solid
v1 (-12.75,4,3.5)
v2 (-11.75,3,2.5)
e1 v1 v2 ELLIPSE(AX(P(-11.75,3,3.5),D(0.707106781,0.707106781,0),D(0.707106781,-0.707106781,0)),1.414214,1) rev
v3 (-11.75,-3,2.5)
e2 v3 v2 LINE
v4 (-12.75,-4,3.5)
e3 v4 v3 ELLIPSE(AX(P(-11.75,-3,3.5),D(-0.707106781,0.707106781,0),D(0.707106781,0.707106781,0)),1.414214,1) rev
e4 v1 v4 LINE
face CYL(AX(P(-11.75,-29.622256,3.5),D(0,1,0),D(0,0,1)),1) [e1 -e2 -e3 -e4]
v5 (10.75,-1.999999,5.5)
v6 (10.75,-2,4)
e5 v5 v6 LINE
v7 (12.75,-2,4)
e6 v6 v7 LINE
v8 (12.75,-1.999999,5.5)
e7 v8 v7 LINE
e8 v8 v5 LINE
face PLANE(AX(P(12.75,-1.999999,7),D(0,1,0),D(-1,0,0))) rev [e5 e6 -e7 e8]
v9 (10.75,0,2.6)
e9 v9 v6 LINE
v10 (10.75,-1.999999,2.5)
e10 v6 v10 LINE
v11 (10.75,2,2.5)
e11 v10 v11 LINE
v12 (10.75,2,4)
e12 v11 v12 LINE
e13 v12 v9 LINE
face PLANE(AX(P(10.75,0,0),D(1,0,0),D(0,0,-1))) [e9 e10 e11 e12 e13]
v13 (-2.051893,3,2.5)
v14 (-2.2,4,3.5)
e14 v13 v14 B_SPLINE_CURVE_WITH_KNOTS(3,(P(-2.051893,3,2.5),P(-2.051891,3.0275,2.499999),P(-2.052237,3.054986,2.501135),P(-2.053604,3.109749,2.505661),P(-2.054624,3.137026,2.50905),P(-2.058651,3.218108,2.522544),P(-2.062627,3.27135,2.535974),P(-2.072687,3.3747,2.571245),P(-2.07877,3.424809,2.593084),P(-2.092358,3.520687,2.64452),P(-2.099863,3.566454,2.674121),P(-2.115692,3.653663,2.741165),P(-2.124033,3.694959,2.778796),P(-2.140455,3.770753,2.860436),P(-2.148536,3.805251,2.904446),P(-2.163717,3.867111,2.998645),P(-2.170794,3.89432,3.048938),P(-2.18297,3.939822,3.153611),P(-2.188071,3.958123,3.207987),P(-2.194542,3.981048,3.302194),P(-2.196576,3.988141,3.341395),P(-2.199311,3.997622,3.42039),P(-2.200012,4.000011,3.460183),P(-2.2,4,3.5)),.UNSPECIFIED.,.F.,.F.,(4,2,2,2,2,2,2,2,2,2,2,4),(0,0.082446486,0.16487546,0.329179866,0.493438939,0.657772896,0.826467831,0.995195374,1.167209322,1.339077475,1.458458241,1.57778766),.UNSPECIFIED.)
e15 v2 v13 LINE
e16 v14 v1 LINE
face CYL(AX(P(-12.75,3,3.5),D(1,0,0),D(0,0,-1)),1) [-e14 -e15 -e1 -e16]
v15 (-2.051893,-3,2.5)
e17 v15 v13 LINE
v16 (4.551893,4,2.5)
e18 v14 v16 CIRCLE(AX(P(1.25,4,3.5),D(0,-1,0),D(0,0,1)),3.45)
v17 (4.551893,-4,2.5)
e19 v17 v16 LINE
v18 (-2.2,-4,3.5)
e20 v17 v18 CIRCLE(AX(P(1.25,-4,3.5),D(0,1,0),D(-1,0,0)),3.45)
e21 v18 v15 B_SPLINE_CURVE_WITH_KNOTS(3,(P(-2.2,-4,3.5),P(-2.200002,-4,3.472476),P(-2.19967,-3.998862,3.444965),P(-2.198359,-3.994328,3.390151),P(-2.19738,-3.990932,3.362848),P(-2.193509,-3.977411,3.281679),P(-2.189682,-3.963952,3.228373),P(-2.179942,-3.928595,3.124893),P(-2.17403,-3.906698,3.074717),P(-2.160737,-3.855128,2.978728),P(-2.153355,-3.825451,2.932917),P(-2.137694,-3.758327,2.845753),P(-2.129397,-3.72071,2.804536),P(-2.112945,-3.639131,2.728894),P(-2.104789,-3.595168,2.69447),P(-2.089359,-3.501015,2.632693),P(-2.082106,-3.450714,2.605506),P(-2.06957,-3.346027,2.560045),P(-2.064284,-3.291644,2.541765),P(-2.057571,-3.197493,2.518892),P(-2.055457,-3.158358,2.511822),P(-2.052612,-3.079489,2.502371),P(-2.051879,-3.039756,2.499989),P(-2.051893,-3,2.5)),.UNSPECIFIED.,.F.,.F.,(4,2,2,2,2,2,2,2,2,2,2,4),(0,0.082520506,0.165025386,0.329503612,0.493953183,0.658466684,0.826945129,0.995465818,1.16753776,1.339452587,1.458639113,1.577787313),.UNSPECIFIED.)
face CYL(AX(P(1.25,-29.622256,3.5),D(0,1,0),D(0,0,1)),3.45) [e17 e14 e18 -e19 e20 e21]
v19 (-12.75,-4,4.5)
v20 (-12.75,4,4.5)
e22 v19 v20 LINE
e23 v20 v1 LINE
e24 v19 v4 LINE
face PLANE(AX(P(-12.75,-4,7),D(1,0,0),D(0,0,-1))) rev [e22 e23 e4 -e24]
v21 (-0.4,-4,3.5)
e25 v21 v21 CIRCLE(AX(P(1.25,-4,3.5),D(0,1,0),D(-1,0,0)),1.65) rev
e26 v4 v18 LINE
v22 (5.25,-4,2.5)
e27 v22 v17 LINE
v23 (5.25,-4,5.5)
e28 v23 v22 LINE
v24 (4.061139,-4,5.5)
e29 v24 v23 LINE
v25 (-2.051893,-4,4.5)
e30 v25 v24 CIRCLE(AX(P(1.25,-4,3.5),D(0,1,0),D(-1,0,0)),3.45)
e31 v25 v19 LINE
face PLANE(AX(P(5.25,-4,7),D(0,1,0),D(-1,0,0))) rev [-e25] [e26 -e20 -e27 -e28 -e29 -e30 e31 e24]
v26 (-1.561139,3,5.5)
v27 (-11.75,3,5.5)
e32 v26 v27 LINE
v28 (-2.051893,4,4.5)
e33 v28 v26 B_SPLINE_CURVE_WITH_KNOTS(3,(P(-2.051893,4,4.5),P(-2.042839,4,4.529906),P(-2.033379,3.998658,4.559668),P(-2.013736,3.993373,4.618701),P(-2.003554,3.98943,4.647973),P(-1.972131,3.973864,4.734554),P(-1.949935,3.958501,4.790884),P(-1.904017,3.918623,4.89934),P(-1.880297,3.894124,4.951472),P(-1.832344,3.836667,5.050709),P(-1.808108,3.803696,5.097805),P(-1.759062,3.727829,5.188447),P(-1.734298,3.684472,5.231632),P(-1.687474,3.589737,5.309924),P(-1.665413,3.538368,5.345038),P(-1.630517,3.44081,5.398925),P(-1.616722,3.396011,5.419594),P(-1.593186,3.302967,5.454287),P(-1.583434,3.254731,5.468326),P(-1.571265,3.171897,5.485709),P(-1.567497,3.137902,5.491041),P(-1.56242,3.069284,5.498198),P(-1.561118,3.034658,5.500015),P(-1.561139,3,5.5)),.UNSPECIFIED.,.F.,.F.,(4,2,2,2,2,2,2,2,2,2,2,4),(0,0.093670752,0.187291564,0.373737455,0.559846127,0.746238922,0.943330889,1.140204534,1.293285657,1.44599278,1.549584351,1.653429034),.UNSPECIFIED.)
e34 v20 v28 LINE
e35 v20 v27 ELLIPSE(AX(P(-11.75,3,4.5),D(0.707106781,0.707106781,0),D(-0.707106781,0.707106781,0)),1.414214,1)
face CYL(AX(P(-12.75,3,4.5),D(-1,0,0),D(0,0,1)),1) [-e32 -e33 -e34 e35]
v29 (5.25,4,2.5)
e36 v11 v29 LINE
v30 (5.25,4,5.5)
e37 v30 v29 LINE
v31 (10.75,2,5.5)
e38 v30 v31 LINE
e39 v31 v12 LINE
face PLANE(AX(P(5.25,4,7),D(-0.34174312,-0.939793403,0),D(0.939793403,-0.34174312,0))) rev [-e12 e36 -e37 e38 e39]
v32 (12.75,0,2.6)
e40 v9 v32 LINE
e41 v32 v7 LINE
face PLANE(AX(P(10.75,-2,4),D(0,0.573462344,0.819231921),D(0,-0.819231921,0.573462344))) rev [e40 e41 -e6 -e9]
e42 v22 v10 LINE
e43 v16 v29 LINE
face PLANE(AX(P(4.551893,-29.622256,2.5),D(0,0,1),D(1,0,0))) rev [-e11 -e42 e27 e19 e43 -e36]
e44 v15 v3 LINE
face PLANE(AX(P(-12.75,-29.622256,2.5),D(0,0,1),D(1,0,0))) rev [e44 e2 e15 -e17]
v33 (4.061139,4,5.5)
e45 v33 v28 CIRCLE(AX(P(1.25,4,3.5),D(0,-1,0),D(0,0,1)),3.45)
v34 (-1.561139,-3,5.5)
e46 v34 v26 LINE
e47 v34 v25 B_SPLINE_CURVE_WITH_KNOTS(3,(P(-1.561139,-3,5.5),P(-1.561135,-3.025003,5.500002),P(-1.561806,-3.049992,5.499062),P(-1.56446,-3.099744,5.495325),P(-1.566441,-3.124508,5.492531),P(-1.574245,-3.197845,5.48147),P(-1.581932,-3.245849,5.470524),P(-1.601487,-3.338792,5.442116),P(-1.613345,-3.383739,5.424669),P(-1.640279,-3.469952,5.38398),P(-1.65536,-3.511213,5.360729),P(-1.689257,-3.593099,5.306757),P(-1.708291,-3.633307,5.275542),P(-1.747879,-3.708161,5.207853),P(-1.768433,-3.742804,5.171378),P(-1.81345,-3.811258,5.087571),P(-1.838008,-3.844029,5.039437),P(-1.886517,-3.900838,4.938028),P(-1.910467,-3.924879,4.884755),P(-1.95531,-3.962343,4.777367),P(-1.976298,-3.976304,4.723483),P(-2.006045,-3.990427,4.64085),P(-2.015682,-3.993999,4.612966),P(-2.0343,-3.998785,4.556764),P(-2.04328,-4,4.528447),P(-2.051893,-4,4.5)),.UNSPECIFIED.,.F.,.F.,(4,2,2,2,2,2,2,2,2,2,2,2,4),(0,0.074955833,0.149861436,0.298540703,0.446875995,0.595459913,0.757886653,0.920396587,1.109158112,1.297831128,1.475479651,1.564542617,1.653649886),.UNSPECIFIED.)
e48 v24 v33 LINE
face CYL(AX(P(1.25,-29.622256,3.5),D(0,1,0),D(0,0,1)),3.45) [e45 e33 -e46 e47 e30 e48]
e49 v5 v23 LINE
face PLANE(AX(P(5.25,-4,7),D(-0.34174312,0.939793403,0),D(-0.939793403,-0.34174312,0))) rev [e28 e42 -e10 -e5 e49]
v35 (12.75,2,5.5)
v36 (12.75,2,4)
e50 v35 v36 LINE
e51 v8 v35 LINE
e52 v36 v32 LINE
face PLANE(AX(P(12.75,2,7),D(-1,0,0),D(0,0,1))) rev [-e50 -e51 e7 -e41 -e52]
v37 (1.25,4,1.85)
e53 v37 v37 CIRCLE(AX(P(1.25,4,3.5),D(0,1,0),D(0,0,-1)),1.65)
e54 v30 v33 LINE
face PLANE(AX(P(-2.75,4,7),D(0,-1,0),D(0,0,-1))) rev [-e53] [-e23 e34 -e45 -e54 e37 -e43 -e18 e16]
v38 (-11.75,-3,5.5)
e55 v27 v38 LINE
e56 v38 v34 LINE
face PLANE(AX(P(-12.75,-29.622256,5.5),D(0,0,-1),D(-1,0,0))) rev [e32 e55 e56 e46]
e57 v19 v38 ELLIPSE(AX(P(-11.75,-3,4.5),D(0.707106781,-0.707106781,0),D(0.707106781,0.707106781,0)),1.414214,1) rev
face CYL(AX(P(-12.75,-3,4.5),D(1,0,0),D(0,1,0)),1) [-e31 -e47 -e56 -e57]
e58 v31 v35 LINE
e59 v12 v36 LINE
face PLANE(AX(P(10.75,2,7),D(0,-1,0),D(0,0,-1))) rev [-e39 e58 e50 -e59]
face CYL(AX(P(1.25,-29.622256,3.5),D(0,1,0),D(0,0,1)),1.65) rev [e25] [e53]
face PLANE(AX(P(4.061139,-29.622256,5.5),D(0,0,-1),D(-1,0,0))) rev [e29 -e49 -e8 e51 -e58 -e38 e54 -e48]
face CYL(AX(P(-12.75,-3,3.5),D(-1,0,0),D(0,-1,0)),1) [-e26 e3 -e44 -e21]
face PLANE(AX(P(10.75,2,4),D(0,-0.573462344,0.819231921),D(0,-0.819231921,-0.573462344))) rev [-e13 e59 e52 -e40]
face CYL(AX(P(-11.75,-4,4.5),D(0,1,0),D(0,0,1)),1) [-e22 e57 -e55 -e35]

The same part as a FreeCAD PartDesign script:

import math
import FreeCAD as App
import Part
import Sketcher
from FreeCAD import Vector


def edges_at(feature, points):
    """Names of the edges that pass closest to the given points."""
    edges = feature.Shape.Edges
    near = lambda p: min(range(len(edges)), key=lambda i: edges[i].distToShape(Part.Vertex(*p))[0])
    return sorted({f"Edge{near(p) + 1}" for p in points})

doc = App.newDocument("Part")
body = doc.addObject("PartDesign::Body", "Body")

sketch1 = body.newObject("Sketcher::SketchObject", "Sketch")
sketch1.AttachmentSupport = (doc.getObject("XY_Plane"), [""])
sketch1.MapMode = "FlatFace"
sketch1.addGeometry([
    Part.LineSegment(Vector(5.2, 4, 0), Vector(-12.8, 4, 0)),
    Part.LineSegment(Vector(-12.8, 4, 0), Vector(-12.8, -4, 0)),
    Part.LineSegment(Vector(-12.8, -4, 0), Vector(5.2, -4, 0)),
    Part.LineSegment(Vector(5.2, -4, 0), Vector(10.8, -2, 0)),
    Part.LineSegment(Vector(10.8, -2, 0), Vector(12.8, -2, 0)),
    Part.LineSegment(Vector(12.8, -2, 0), Vector(12.8, 2, 0)),
    Part.LineSegment(Vector(12.8, 2, 0), Vector(10.8, 2, 0)),
    Part.LineSegment(Vector(10.8, 2, 0), Vector(5.2, 4, 0)),
], False)
sketch1.addConstraint([
    Sketcher.Constraint("Coincident", 0, 2, 1, 1),
    Sketcher.Constraint("Coincident", 1, 2, 2, 1),
    Sketcher.Constraint("Coincident", 2, 2, 3, 1),
    Sketcher.Constraint("Coincident", 3, 2, 4, 1),
    Sketcher.Constraint("Coincident", 4, 2, 5, 1),
    Sketcher.Constraint("Coincident", 5, 2, 6, 1),
    Sketcher.Constraint("Coincident", 6, 2, 7, 1),
    Sketcher.Constraint("Coincident", 7, 2, 0, 1),
    Sketcher.Constraint("Horizontal", 0),
    Sketcher.Constraint("Vertical", 1),
    Sketcher.Constraint("Horizontal", 2),
    Sketcher.Constraint("Horizontal", 4),
    Sketcher.Constraint("Vertical", 5),
    Sketcher.Constraint("Horizontal", 6),
    Sketcher.Constraint("Symmetric", 3, 2, 6, 2, -1),
    Sketcher.Constraint("Symmetric", 2, 2, 7, 2, -1),
    Sketcher.Constraint("DistanceX", 0, 2, 0, 1, 18.0),
    Sketcher.Constraint("DistanceX", 4, 1, 4, 2, 2.0),
    Sketcher.Constraint("DistanceY", 1, 2, 1, 1, 8.0),
    Sketcher.Constraint("DistanceY", 5, 1, 5, 2, 3.999999),
    Sketcher.Constraint("DistanceX", 2, 2, 3, 2, 5.5),
    Sketcher.Constraint("DistanceX", 0, 2, -1, 1, 12.75),
])
pad1 = body.newObject("PartDesign::Pad", "Pad")
pad1.Profile = sketch1
pad1.Length = 7

sketch2 = body.newObject("Sketcher::SketchObject", "Sketch001")
sketch2.AttachmentSupport = (doc.getObject("XZ_Plane"), [""])
sketch2.MapMode = "FlatFace"
sketch2.AttachmentOffset = App.Placement(Vector(0, 0, -4), App.Rotation())
sketch2.addGeometry([
    Part.Circle(Vector(1.2, 3.5, 0), Vector(0, 0, 1), 1.6),
    Part.LineSegment(Vector(-12.8, 2.5, 0), Vector(-2.1, 2.5, 0)),
    Part.ArcOfCircle(Part.Circle(Vector(1.2, 3.5, 0), Vector(0, 0, 1), 3.5), math.radians(-163), math.radians(-17)),
    Part.LineSegment(Vector(4.6, 2.5, 0), Vector(12.8, 2.5, 0)),
    Part.LineSegment(Vector(12.8, 2.5, 0), Vector(12.8, 0, 0)),
    Part.LineSegment(Vector(12.8, 0, 0), Vector(-12.8, 0, 0)),
    Part.LineSegment(Vector(-12.8, 0, 0), Vector(-12.8, 2.5, 0)),
    Part.LineSegment(Vector(-1.6, 5.5, 0), Vector(-12.8, 5.5, 0)),
    Part.LineSegment(Vector(-12.8, 5.5, 0), Vector(-12.8, 7, 0)),
    Part.LineSegment(Vector(-12.8, 7, 0), Vector(12.8, 7, 0)),
    Part.LineSegment(Vector(12.8, 7, 0), Vector(12.8, 5.5, 0)),
    Part.LineSegment(Vector(12.8, 5.5, 0), Vector(4.1, 5.5, 0)),
    Part.ArcOfCircle(Part.Circle(Vector(1.2, 3.5, 0), Vector(0, 0, 1), 3.5), math.radians(35), math.radians(145)),
], False)
sketch2.addConstraint([
    Sketcher.Constraint("Coincident", 1, 2, 2, 1),
    Sketcher.Constraint("Coincident", 2, 2, 3, 1),
    Sketcher.Constraint("Coincident", 3, 2, 4, 1),
    Sketcher.Constraint("Coincident", 4, 2, 5, 1),
    Sketcher.Constraint("Coincident", 5, 2, 6, 1),
    Sketcher.Constraint("Coincident", 6, 2, 1, 1),
    Sketcher.Constraint("Coincident", 7, 2, 8, 1),
    Sketcher.Constraint("Coincident", 8, 2, 9, 1),
    Sketcher.Constraint("Coincident", 9, 2, 10, 1),
    Sketcher.Constraint("Coincident", 10, 2, 11, 1),
    Sketcher.Constraint("Coincident", 11, 2, 12, 1),
    Sketcher.Constraint("Coincident", 12, 2, 7, 1),
    Sketcher.Constraint("Horizontal", 1),
    Sketcher.Constraint("Horizontal", 3),
    Sketcher.Constraint("Vertical", 4),
    Sketcher.Constraint("Horizontal", 5),
    Sketcher.Constraint("Vertical", 6),
    Sketcher.Constraint("Horizontal", 7),
    Sketcher.Constraint("Vertical", 8),
    Sketcher.Constraint("Horizontal", 9),
    Sketcher.Constraint("Vertical", 10),
    Sketcher.Constraint("Horizontal", 11),
    Sketcher.Constraint("Coincident", 2, 3, 0, 3),
    Sketcher.Constraint("Coincident", 12, 3, 0, 3),
    Sketcher.Constraint("Equal", 2, 12),
    Sketcher.Constraint("Symmetric", 4, 2, 5, 2, -1, 1),
    Sketcher.Constraint("Symmetric", 7, 2, 10, 2, -2),
    Sketcher.Constraint("Horizontal", 1, 2, 2, 2),
    Sketcher.Constraint("Vertical", 6, 2, 7, 2),
    Sketcher.Constraint("Diameter", 0, 3.3),
    Sketcher.Constraint("Radius", 2, 3.45),
    Sketcher.Constraint("DistanceX", 5, 2, 5, 1, 25.5),
    Sketcher.Constraint("DistanceY", 4, 2, 4, 1, 2.5),
    Sketcher.Constraint("DistanceY", 8, 1, 8, 2, 1.5),
    Sketcher.Constraint("DistanceY", -1, 1, 8, 2, 7.0),
    Sketcher.Constraint("DistanceY", 1, 2, 2, 3, 1.0),
    Sketcher.Constraint("DistanceX", 5, 2, 2, 3, 14.0),
])
pocket1 = body.newObject("PartDesign::Pocket", "Pocket")
pocket1.Profile = sketch2
pocket1.Length = 8
pocket1.Reversed = True

sketch3 = body.newObject("Sketcher::SketchObject", "Sketch002")
sketch3.AttachmentSupport = (doc.getObject("YZ_Plane"), [""])
sketch3.MapMode = "FlatFace"
sketch3.AttachmentOffset = App.Placement(Vector(0, 0, 12.75), App.Rotation())
sketch3.addGeometry([
    Part.LineSegment(Vector(2, 4, 0), Vector(0, 2.6, 0)),
    Part.LineSegment(Vector(0, 2.6, 0), Vector(-2, 4, 0)),
    Part.LineSegment(Vector(-2, 4, 0), Vector(-2, 2.5, 0)),
    Part.LineSegment(Vector(-2, 2.5, 0), Vector(2, 2.5, 0)),
    Part.LineSegment(Vector(2, 2.5, 0), Vector(2, 4, 0)),
], False)
sketch3.addConstraint([
    Sketcher.Constraint("Coincident", 0, 2, 1, 1),
    Sketcher.Constraint("Coincident", 1, 2, 2, 1),
    Sketcher.Constraint("Coincident", 2, 2, 3, 1),
    Sketcher.Constraint("Coincident", 3, 2, 4, 1),
    Sketcher.Constraint("Coincident", 4, 2, 0, 1),
    Sketcher.Constraint("Vertical", 2),
    Sketcher.Constraint("Horizontal", 3),
    Sketcher.Constraint("Vertical", 4),
    Sketcher.Constraint("Symmetric", 1, 2, 4, 2, -2),
    Sketcher.Constraint("PointOnObject", 0, 2, -2),
    Sketcher.Constraint("DistanceX", 3, 1, 3, 2, 4.0),
    Sketcher.Constraint("DistanceY", 2, 2, 2, 1, 1.5),
    Sketcher.Constraint("DistanceY", -1, 1, 1, 2, 4.0),
    Sketcher.Constraint("DistanceY", -1, 1, 0, 2, 2.6),
])
pocket2 = body.newObject("PartDesign::Pocket", "Pocket001")
pocket2.Profile = sketch3
pocket2.Length = 2
doc.recompute()

fillet = body.newObject("PartDesign::Fillet", "Fillet")
fillet.Base = (pocket2, edges_at(pocket2, [
    (-7.401, 4, 2.5),
    (-7.401, -4, 2.5),
    (-12.75, 0, 2.5),
    (-7.156, 4, 5.5),
    (-7.156, -4, 5.5),
    (-12.75, 0, 5.5),
]))
fillet.Radius = 1

doc.recompute()
